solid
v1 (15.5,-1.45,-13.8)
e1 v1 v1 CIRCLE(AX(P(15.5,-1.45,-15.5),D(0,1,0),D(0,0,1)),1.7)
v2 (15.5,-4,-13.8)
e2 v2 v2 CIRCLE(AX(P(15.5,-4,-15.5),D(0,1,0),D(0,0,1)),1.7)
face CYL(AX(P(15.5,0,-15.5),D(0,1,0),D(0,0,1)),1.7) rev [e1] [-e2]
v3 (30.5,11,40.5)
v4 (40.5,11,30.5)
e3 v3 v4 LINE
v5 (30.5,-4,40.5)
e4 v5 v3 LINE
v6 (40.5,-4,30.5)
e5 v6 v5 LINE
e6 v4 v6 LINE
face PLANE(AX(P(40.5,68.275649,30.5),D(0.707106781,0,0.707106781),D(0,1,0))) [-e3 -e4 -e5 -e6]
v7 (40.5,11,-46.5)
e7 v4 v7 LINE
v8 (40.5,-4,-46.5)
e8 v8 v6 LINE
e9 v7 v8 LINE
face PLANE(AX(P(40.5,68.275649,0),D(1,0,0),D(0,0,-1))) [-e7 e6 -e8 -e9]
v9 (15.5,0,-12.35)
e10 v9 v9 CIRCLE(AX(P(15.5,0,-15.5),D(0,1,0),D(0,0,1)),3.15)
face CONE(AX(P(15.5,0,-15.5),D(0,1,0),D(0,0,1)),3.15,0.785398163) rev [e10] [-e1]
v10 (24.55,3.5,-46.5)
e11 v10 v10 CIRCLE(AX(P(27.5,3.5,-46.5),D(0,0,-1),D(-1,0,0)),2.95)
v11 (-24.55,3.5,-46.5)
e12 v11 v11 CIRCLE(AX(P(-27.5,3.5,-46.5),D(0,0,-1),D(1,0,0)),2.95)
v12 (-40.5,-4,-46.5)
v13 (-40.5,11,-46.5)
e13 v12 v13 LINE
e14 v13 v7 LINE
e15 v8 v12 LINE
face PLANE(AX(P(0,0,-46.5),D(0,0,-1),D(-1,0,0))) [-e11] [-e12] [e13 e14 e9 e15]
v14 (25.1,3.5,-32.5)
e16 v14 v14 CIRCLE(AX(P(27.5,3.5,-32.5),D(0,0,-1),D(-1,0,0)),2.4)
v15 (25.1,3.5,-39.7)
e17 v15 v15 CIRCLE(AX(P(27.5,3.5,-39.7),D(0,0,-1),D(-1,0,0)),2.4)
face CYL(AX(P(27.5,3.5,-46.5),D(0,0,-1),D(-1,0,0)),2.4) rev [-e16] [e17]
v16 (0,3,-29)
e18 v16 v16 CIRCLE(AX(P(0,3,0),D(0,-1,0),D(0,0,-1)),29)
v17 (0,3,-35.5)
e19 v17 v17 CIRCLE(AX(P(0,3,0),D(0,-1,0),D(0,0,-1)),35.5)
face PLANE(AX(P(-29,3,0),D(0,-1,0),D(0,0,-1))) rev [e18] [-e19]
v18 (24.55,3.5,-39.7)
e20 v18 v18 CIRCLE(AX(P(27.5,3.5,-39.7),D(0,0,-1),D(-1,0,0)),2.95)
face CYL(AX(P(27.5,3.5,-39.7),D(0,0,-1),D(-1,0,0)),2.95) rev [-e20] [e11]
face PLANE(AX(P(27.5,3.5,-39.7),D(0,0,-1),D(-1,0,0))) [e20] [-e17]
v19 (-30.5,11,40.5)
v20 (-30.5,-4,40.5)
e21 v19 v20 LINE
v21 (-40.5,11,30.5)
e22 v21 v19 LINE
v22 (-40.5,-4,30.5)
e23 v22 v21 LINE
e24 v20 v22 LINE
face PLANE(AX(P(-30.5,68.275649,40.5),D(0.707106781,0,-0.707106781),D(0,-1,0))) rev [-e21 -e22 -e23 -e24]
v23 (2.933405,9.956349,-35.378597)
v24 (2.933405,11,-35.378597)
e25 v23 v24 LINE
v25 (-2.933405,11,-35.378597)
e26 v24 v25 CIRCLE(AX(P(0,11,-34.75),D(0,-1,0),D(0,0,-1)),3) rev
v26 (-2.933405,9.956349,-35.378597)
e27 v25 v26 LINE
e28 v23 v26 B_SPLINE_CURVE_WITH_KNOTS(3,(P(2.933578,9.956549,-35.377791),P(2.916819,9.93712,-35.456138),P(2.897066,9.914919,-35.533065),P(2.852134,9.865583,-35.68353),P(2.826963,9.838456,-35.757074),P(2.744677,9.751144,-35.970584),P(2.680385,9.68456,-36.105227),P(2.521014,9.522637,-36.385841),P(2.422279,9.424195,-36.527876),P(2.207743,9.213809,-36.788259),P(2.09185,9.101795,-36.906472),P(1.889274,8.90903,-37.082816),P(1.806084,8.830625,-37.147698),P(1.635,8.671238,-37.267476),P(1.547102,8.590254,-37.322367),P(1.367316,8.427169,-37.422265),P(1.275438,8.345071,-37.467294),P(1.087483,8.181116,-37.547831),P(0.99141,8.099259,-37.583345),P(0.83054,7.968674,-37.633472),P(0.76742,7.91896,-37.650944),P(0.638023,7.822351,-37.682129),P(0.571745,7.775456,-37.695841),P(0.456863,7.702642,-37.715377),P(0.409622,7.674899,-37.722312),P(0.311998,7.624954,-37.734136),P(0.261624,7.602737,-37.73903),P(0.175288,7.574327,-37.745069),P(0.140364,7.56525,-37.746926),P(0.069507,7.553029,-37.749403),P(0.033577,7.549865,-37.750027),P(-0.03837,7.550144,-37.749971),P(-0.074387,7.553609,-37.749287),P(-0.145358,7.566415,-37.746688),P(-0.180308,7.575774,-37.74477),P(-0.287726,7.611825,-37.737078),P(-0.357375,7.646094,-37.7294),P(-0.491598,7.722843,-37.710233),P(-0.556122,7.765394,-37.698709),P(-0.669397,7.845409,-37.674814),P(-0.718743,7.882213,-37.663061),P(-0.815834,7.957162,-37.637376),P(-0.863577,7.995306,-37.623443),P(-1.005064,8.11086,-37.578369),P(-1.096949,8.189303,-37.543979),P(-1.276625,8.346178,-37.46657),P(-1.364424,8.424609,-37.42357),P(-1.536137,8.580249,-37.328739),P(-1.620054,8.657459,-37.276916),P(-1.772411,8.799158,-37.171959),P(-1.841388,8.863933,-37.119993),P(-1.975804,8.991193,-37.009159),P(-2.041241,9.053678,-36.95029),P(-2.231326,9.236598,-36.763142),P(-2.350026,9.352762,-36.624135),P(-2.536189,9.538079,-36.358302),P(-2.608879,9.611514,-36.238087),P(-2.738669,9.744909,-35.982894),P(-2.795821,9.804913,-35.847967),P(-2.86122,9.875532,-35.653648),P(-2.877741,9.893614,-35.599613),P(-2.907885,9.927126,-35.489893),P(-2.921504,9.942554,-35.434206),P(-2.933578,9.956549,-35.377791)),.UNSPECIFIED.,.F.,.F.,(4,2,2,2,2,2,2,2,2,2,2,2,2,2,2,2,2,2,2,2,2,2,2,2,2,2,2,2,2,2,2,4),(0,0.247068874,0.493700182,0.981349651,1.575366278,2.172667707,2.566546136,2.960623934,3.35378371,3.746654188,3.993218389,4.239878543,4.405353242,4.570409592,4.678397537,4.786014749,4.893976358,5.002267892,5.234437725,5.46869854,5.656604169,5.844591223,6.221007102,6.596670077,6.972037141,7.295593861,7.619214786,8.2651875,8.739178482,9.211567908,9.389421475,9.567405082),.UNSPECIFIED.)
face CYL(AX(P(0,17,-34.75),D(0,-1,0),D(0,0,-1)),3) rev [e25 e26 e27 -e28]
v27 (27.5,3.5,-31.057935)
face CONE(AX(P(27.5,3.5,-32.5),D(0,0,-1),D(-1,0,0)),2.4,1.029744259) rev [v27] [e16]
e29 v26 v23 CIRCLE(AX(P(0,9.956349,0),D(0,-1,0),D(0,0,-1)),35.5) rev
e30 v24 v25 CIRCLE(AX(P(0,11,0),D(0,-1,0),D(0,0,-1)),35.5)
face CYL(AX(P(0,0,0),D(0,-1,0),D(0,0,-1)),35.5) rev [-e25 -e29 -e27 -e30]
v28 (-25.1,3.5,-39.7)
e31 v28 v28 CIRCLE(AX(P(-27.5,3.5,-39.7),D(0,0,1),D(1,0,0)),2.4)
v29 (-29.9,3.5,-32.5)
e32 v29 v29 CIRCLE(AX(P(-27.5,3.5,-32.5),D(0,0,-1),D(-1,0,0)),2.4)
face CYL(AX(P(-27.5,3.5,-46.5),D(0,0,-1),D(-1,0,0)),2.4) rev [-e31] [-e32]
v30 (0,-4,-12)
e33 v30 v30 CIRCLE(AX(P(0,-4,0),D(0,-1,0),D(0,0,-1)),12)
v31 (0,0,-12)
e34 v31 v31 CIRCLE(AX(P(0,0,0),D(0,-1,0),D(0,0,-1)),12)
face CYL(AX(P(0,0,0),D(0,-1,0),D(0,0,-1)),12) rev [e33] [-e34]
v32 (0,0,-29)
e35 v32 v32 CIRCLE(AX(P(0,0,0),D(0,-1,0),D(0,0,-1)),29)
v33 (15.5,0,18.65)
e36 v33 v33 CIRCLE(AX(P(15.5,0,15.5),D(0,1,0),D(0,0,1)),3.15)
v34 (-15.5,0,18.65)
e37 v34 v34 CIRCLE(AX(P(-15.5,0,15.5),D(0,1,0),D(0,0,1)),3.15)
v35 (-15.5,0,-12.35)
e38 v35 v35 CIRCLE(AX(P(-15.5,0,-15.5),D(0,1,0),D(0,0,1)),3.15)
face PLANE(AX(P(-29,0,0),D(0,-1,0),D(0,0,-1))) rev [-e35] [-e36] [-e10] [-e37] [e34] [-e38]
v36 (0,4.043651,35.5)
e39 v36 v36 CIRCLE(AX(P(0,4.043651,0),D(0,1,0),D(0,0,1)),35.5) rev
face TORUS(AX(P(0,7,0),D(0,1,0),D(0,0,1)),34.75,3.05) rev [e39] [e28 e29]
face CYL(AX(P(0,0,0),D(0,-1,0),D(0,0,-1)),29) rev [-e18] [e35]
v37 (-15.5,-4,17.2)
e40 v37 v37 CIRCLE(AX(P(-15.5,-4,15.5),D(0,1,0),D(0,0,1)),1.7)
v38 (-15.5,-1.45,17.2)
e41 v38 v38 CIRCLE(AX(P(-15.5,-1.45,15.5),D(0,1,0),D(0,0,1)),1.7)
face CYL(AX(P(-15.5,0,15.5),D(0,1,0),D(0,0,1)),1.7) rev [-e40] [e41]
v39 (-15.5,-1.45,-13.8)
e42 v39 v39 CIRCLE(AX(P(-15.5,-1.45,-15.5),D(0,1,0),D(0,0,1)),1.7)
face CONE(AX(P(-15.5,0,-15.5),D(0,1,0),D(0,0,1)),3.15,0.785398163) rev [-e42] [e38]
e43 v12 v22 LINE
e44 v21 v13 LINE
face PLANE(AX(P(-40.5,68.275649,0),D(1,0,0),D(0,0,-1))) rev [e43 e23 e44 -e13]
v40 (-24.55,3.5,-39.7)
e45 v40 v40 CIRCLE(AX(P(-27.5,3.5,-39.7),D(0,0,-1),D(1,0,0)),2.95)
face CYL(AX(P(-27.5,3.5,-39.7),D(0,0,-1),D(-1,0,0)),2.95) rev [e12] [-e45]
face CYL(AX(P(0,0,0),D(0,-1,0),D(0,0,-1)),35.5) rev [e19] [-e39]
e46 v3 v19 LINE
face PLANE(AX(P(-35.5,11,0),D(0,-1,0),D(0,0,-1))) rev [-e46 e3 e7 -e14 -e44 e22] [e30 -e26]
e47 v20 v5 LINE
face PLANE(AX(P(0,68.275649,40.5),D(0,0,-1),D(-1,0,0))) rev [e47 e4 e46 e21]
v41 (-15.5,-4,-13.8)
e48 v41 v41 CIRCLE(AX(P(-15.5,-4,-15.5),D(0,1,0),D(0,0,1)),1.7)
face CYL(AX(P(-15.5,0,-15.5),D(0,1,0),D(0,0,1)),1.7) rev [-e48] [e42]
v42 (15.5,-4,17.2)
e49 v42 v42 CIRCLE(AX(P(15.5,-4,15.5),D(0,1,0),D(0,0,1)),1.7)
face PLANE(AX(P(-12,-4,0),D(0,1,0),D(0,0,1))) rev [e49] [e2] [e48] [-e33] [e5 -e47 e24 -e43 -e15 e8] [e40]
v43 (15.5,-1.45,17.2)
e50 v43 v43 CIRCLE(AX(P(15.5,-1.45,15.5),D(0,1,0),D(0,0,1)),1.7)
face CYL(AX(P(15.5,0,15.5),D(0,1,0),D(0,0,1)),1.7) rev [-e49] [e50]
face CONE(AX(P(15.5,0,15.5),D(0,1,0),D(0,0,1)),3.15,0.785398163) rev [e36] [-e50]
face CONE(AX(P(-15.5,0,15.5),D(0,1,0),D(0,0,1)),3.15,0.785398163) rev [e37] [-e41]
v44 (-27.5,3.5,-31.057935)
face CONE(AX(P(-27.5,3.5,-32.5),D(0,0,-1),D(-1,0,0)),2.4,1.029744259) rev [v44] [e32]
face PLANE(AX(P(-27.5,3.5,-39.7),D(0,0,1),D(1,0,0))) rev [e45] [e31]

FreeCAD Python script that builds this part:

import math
import FreeCAD as App
import Part
import Sketcher
Q = App.Units.Quantity


def edges_at(feature, points):
    """Names of the edges that pass closest to the given points."""
    edges = feature.Shape.Edges
    near = lambda p: min(range(len(edges)), key=lambda i: edges[i].distToShape(Part.Vertex(*p))[0])
    return sorted({f"Edge{near(p) + 1}" for p in points})


def add_polygon(sketch, points):
    """Adds a closed chain of lines whose ends are joined by coincident constraints."""
    first, n = sketch.GeometryCount, len(points)
    for a, b in zip(points, points[1:] + points[:1]):
        sketch.addGeometry(Part.LineSegment(App.Vector(*a, 0), App.Vector(*b, 0)), False)
    for i in range(n):
        sketch.addConstraint(Sketcher.Constraint("Coincident", first + i, 2, first + (i + 1) % n, 1))

doc = App.newDocument("Part")
body = doc.addObject("PartDesign::Body", "Body")

# Sketch on XY plane
sketch1 = body.newObject("Sketcher::SketchObject", "Sketch")
sketch1.AttachmentSupport = (doc.getObject("XY_Plane"), [""])
sketch1.MapMode = "FlatFace"
add_polygon(sketch1, [(-29, 0), (-29, 3), (-35.5, 3), (-35.5, 11), (-40.5, 11), (-40.5, -4), (-12, -4), (-12, 0)])  # lines 0-7
sketch1.addConstraint([
    Sketcher.Constraint("Vertical", 0),
    Sketcher.Constraint("Horizontal", 1),
    Sketcher.Constraint("Vertical", 2),
    Sketcher.Constraint("Horizontal", 3),
    Sketcher.Constraint("Vertical", 4),
    Sketcher.Constraint("Horizontal", 5),
    Sketcher.Constraint("Vertical", 6),
    Sketcher.Constraint("Horizontal", 7),
    Sketcher.Constraint("PointOnObject", 6, 2, -1),
    Sketcher.Constraint("DistanceX", 3, 2, 3, 1, Q("5 mm")),
    Sketcher.Constraint("DistanceX", 7, 2, 7, 1, Q("17 mm")),
    Sketcher.Constraint("DistanceY", 0, 1, 0, 2, Q("3 mm")),
    Sketcher.Constraint("DistanceY", 2, 1, 2, 2, Q("8 mm")),
    Sketcher.Constraint("DistanceY", 4, 2, 4, 1, Q("15 mm")),
    Sketcher.Constraint("DistanceX", 1, 2, 1, 1, Q("6.5 mm")),
    Sketcher.Constraint("DistanceX", 0, 2, -1, 1, Q("29 mm")),
])
revolution = body.newObject("PartDesign::Revolution", "Revolution")
revolution.Profile = sketch1
revolution.ReferenceAxis = (sketch1, ["V_Axis"])
revolution.Angle = 360

# Sketch on XZ plane
sketch2 = body.newObject("Sketcher::SketchObject", "Sketch001")
sketch2.AttachmentSupport = (doc.getObject("XZ_Plane"), [""])
sketch2.MapMode = "FlatFace"
sketch2.addGeometry([
    Part.Circle(App.Vector(-15.5, -15.5, 0), App.Vector(0, 0, 1), 1.2),
    Part.Circle(App.Vector(15.5, -15.5, 0), App.Vector(0, 0, 1), 1.2),
    Part.Circle(App.Vector(15.5, 15.5, 0), App.Vector(0, 0, 1), 1.2),
    Part.Circle(App.Vector(-15.5, 15.5, 0), App.Vector(0, 0, 1), 1.2),
], False)
sketch2.addConstraint([
    Sketcher.Constraint("Equal", 0, 1),
    Sketcher.Constraint("Equal", 1, 2),
    Sketcher.Constraint("Equal", 2, 3),
    Sketcher.Constraint("Symmetric", 0, 3, 2, 3, -1, 1),
    Sketcher.Constraint("Symmetric", 1, 3, 3, 3, -1, 1),
    Sketcher.Constraint("Symmetric", 0, 3, 1, 3, -2),
    Sketcher.Constraint("Diameter", 0, Q("2.5 mm")),
    Sketcher.Constraint("DistanceX", 0, 3, 1, 3, Q("31 mm")),
    Sketcher.Constraint("DistanceY", 1, 3, 2, 3, Q("31 mm")),
])
pocket1 = body.newObject("PartDesign::Pocket", "Pocket")
pocket1.Profile = sketch2
pocket1.Type = "ThroughAll"
pocket1.Reversed = True

# Sketch on XY plane
sketch3 = body.newObject("Sketcher::SketchObject", "Sketch002")
sketch3.AttachmentSupport = (doc.getObject("XY_Plane"), [""])
sketch3.MapMode = "FlatFace"
sketch3.addGeometry(Part.Circle(App.Vector(34.8, 7, 0), App.Vector(0, 0, 1), 3), False)
sketch3.addConstraint([
    Sketcher.Constraint("Diameter", 0, Q("6.1 mm")),
    Sketcher.Constraint("DistanceY", -1, 1, 0, 3, Q("7 mm")),
    Sketcher.Constraint("DistanceX", -1, 1, 0, 3, Q("34.75 mm")),
])
groove = body.newObject("PartDesign::Groove", "Groove")
groove.Profile = sketch3
groove.ReferenceAxis = (sketch3, ["V_Axis"])
groove.Angle = 360

# Sketch on XZ plane
sketch4 = body.newObject("Sketcher::SketchObject", "Sketch003")
sketch4.AttachmentSupport = (doc.getObject("XZ_Plane"), [""])
sketch4.MapMode = "FlatFace"
sketch4.AttachmentOffset = App.Placement(App.Vector(0, 0, -7), App.Rotation())
sketch4.addGeometry(Part.Circle(App.Vector(0, -34.8, 0), App.Vector(0, 0, 1), 3), False)
sketch4.addConstraint([
    Sketcher.Constraint("PointOnObject", 0, 3, -2),
    Sketcher.Constraint("Diameter", 0, Q("6 mm")),
    Sketcher.Constraint("DistanceY", 0, 3, -1, 1, Q("34.75 mm")),
])
pocket2 = body.newObject("PartDesign::Pocket", "Pocket001")
pocket2.Profile = sketch4
pocket2.Length = 10

# Sketch on XZ plane
sketch5 = body.newObject("Sketcher::SketchObject", "Sketch004")
sketch5.AttachmentSupport = (doc.getObject("XZ_Plane"), [""])
sketch5.MapMode = "FlatFace"
sketch5.AttachmentOffset = App.Placement(App.Vector(0, 0, -11), App.Rotation())
sketch5.addGeometry([
    Part.LineSegment(App.Vector(-40, 0, 0), App.Vector(-40, -40, 0)),  # 0
    Part.LineSegment(App.Vector(-40, -40, 0), App.Vector(0, -40, 0)),  # 1
    Part.ArcOfCircle(Part.Circle(App.Vector(0, 0, 0), App.Vector(0, 0, 1), 40), math.radians(180), math.radians(270)),  # 2
    Part.ArcOfCircle(Part.Circle(App.Vector(0, 0, 0), App.Vector(0, 0, 1), 40), math.radians(-90), math.radians(0)),  # 3
    Part.LineSegment(App.Vector(0, -40, 0), App.Vector(40, -40, 0)),  # 4
    Part.LineSegment(App.Vector(40, -40, 0), App.Vector(40, 0, 0)),  # 5
    Part.LineSegment(App.Vector(-40, 40, 0), App.Vector(-40, 0, 0)),  # 6
    Part.ArcOfCircle(Part.Circle(App.Vector(0, 0, 0), App.Vector(0, 0, 1), 40), math.radians(90), math.radians(180)),  # 7
    Part.LineSegment(App.Vector(0, 40, 0), App.Vector(-40, 40, 0)),  # 8
    Part.ArcOfCircle(Part.Circle(App.Vector(0, 0, 0), App.Vector(0, 0, 1), 40), math.radians(0), math.radians(90)),  # 9
    Part.LineSegment(App.Vector(40, 0, 0), App.Vector(40, 40, 0)),  # 10
    Part.LineSegment(App.Vector(40, 40, 0), App.Vector(0, 40, 0)),  # 11
], False)
sketch5.addConstraint([
    Sketcher.Constraint("Coincident", 0, 2, 1, 1),
    Sketcher.Constraint("Tangent", 1, 2, 2, 2),
    Sketcher.Constraint("Tangent", 2, 1, 0, 1),
    Sketcher.Constraint("Tangent", 3, 1, 4, 1),
    Sketcher.Constraint("Coincident", 4, 2, 5, 1),
    Sketcher.Constraint("Tangent", 5, 2, 3, 2),
    Sketcher.Constraint("Tangent", 6, 2, 7, 2),
    Sketcher.Constraint("Tangent", 7, 1, 8, 1),
    Sketcher.Constraint("Coincident", 8, 2, 6, 1),
    Sketcher.Constraint("Tangent", 9, 1, 10, 1),
    Sketcher.Constraint("Coincident", 10, 2, 11, 1),
    Sketcher.Constraint("Tangent", 11, 2, 9, 2),
    Sketcher.Constraint("Vertical", 0),
    Sketcher.Constraint("Horizontal", 1),
    Sketcher.Constraint("Horizontal", 4),
    Sketcher.Constraint("Vertical", 5),
    Sketcher.Constraint("Vertical", 6),
    Sketcher.Constraint("Horizontal", 8),
    Sketcher.Constraint("Vertical", 10),
    Sketcher.Constraint("Horizontal", 11),
    Sketcher.Constraint("Coincident", 2, 3, -1, 1),
    Sketcher.Constraint("Coincident", 3, 3, -1, 1),
    Sketcher.Constraint("Coincident", 7, 3, -1, 1),
    Sketcher.Constraint("Coincident", 9, 3, -1, 1),
    Sketcher.Constraint("Equal", 2, 3),
    Sketcher.Constraint("Equal", 3, 7),
    Sketcher.Constraint("Equal", 7, 9),
    Sketcher.Constraint("Radius", 2, Q("40.5 mm")),
])
pad1 = body.newObject("PartDesign::Pad", "Pad")
pad1.Profile = sketch5
pad1.Length = 15
doc.recompute()

chamfer = body.newObject("PartDesign::Chamfer", "Chamfer")
chamfer.Base = (pad1, edges_at(pad1, [(-40.5, 3.5, 40.5), (40.5, 3.5, 40.5)]))
chamfer.Size = 10

# Sketch on XZ plane
sketch6 = body.newObject("Sketcher::SketchObject", "Sketch005")
sketch6.AttachmentSupport = (doc.getObject("XZ_Plane"), [""])
sketch6.MapMode = "FlatFace"
sketch6.addGeometry([
    Part.Circle(App.Vector(-15.5, -15.5, 0), App.Vector(0, 0, 1), 1.7),
    Part.Circle(App.Vector(15.5, -15.5, 0), App.Vector(0, 0, 1), 1.7),
    Part.Circle(App.Vector(15.5, 15.5, 0), App.Vector(0, 0, 1), 1.7),
    Part.Circle(App.Vector(-15.5, 15.5, 0), App.Vector(0, 0, 1), 1.7),
], False)
sketch6.addConstraint([
    Sketcher.Constraint("Equal", 0, 1),
    Sketcher.Constraint("Equal", 1, 2),
    Sketcher.Constraint("Equal", 2, 3),
    Sketcher.Constraint("Symmetric", 0, 3, 2, 3, -1, 1),
    Sketcher.Constraint("Symmetric", 1, 3, 3, 3, -1, 1),
    Sketcher.Constraint("Symmetric", 0, 3, 1, 3, -2),
    Sketcher.Constraint("Diameter", 0, Q("3.4 mm")),
    Sketcher.Constraint("DistanceX", 0, 3, 1, 3, Q("31 mm")),
    Sketcher.Constraint("DistanceY", 1, 3, 2, 3, Q("31 mm")),
])
doc.recompute()
hole = body.newObject("PartDesign::Hole", "Hole")
hole.Profile = sketch6
hole.ThreadType = "None"
hole.Diameter = 3.4
hole.DepthType = "ThroughAll"
hole.HoleCutType = "Countersink"
hole.HoleCutDiameter = 6.3
hole.HoleCutCountersinkAngle = 90
hole.Reversed = True

# Sketch on XY plane
sketch7 = body.newObject("Sketcher::SketchObject", "Sketch006")
sketch7.AttachmentSupport = (doc.getObject("XY_Plane"), [""])
sketch7.MapMode = "FlatFace"
sketch7.AttachmentOffset = App.Placement(App.Vector(0, 0, -40.5), App.Rotation())
add_polygon(sketch7, [(40, 11), (40, -4), (-40, -4), (-40, 11)])  # lines 0-3
sketch7.addConstraint([
    Sketcher.Constraint("Vertical", 0),
    Sketcher.Constraint("Horizontal", 1),
    Sketcher.Constraint("Vertical", 2),
    Sketcher.Constraint("Horizontal", 3),
    Sketcher.Constraint("DistanceX", 1, 2, 1, 1, Q("81 mm")),
    Sketcher.Constraint("DistanceY", 0, 2, 0, 1, Q("15 mm")),
    Sketcher.Constraint("DistanceY", 0, 2, -1, 1, Q("4 mm")),
    Sketcher.Constraint("DistanceX", -1, 1, 0, 2, Q("40.5 mm")),
])
pad2 = body.newObject("PartDesign::Pad", "Pad001")
pad2.Profile = sketch7
pad2.Length = 6
pad2.Reversed = True

# Sketch on XY plane
sketch8 = body.newObject("Sketcher::SketchObject", "Sketch007")
sketch8.AttachmentSupport = (doc.getObject("XY_Plane"), [""])
sketch8.MapMode = "FlatFace"
sketch8.AttachmentOffset = App.Placement(App.Vector(0, 0, -46.5), App.Rotation())
sketch8.addGeometry([
    Part.Circle(App.Vector(27.5, 3.5, 0), App.Vector(0, 0, 1), 3),
    Part.Circle(App.Vector(-27.5, 3.5, 0), App.Vector(0, 0, 1), 3),
], False)
sketch8.addConstraint([
    Sketcher.Constraint("Equal", 0, 1),
    Sketcher.Constraint("Symmetric", 0, 3, 1, 3, -2),
    Sketcher.Constraint("Diameter", 0, Q("5.9 mm")),
    Sketcher.Constraint("DistanceX", 1, 3, 0, 3, Q("55 mm")),
    Sketcher.Constraint("DistanceY", -1, 1, 0, 3, Q("3.5 mm")),
])
pocket3 = body.newObject("PartDesign::Pocket", "Pocket002")
pocket3.Profile = sketch8
pocket3.Length = 6.8
pocket3.Reversed = True

# Sketch on XY plane
sketch9 = body.newObject("Sketcher::SketchObject", "Sketch008")
sketch9.AttachmentSupport = (doc.getObject("XY_Plane"), [""])
sketch9.MapMode = "FlatFace"
sketch9.AttachmentOffset = App.Placement(App.Vector(0, 0, -46.5), App.Rotation())
sketch9.addGeometry([
    Part.Circle(App.Vector(27.5, 3.5, 0), App.Vector(0, 0, 1), 2.4),
    Part.Circle(App.Vector(-27.5, 3.5, 0), App.Vector(0, 0, 1), 2.4),
], False)
sketch9.addConstraint([
    Sketcher.Constraint("Equal", 0, 1),
    Sketcher.Constraint("Symmetric", 0, 3, 1, 3, -2),
    Sketcher.Constraint("Diameter", 0, Q("4.8 mm")),
    Sketcher.Constraint("DistanceX", 1, 3, 0, 3, Q("55 mm")),
    Sketcher.Constraint("DistanceY", -1, 1, 0, 3, Q("3.5 mm")),
])
doc.recompute()
hole2 = body.newObject("PartDesign::Hole", "Hole001")
hole2.Profile = sketch9
hole2.ThreadType = "None"
hole2.Diameter = 4.8
hole2.DepthType = "Dimension"
hole2.Depth = 14
hole2.DrillPoint = "Angled"
hole2.DrillPointAngle = 118
hole2.Reversed = True

doc.recompute()
